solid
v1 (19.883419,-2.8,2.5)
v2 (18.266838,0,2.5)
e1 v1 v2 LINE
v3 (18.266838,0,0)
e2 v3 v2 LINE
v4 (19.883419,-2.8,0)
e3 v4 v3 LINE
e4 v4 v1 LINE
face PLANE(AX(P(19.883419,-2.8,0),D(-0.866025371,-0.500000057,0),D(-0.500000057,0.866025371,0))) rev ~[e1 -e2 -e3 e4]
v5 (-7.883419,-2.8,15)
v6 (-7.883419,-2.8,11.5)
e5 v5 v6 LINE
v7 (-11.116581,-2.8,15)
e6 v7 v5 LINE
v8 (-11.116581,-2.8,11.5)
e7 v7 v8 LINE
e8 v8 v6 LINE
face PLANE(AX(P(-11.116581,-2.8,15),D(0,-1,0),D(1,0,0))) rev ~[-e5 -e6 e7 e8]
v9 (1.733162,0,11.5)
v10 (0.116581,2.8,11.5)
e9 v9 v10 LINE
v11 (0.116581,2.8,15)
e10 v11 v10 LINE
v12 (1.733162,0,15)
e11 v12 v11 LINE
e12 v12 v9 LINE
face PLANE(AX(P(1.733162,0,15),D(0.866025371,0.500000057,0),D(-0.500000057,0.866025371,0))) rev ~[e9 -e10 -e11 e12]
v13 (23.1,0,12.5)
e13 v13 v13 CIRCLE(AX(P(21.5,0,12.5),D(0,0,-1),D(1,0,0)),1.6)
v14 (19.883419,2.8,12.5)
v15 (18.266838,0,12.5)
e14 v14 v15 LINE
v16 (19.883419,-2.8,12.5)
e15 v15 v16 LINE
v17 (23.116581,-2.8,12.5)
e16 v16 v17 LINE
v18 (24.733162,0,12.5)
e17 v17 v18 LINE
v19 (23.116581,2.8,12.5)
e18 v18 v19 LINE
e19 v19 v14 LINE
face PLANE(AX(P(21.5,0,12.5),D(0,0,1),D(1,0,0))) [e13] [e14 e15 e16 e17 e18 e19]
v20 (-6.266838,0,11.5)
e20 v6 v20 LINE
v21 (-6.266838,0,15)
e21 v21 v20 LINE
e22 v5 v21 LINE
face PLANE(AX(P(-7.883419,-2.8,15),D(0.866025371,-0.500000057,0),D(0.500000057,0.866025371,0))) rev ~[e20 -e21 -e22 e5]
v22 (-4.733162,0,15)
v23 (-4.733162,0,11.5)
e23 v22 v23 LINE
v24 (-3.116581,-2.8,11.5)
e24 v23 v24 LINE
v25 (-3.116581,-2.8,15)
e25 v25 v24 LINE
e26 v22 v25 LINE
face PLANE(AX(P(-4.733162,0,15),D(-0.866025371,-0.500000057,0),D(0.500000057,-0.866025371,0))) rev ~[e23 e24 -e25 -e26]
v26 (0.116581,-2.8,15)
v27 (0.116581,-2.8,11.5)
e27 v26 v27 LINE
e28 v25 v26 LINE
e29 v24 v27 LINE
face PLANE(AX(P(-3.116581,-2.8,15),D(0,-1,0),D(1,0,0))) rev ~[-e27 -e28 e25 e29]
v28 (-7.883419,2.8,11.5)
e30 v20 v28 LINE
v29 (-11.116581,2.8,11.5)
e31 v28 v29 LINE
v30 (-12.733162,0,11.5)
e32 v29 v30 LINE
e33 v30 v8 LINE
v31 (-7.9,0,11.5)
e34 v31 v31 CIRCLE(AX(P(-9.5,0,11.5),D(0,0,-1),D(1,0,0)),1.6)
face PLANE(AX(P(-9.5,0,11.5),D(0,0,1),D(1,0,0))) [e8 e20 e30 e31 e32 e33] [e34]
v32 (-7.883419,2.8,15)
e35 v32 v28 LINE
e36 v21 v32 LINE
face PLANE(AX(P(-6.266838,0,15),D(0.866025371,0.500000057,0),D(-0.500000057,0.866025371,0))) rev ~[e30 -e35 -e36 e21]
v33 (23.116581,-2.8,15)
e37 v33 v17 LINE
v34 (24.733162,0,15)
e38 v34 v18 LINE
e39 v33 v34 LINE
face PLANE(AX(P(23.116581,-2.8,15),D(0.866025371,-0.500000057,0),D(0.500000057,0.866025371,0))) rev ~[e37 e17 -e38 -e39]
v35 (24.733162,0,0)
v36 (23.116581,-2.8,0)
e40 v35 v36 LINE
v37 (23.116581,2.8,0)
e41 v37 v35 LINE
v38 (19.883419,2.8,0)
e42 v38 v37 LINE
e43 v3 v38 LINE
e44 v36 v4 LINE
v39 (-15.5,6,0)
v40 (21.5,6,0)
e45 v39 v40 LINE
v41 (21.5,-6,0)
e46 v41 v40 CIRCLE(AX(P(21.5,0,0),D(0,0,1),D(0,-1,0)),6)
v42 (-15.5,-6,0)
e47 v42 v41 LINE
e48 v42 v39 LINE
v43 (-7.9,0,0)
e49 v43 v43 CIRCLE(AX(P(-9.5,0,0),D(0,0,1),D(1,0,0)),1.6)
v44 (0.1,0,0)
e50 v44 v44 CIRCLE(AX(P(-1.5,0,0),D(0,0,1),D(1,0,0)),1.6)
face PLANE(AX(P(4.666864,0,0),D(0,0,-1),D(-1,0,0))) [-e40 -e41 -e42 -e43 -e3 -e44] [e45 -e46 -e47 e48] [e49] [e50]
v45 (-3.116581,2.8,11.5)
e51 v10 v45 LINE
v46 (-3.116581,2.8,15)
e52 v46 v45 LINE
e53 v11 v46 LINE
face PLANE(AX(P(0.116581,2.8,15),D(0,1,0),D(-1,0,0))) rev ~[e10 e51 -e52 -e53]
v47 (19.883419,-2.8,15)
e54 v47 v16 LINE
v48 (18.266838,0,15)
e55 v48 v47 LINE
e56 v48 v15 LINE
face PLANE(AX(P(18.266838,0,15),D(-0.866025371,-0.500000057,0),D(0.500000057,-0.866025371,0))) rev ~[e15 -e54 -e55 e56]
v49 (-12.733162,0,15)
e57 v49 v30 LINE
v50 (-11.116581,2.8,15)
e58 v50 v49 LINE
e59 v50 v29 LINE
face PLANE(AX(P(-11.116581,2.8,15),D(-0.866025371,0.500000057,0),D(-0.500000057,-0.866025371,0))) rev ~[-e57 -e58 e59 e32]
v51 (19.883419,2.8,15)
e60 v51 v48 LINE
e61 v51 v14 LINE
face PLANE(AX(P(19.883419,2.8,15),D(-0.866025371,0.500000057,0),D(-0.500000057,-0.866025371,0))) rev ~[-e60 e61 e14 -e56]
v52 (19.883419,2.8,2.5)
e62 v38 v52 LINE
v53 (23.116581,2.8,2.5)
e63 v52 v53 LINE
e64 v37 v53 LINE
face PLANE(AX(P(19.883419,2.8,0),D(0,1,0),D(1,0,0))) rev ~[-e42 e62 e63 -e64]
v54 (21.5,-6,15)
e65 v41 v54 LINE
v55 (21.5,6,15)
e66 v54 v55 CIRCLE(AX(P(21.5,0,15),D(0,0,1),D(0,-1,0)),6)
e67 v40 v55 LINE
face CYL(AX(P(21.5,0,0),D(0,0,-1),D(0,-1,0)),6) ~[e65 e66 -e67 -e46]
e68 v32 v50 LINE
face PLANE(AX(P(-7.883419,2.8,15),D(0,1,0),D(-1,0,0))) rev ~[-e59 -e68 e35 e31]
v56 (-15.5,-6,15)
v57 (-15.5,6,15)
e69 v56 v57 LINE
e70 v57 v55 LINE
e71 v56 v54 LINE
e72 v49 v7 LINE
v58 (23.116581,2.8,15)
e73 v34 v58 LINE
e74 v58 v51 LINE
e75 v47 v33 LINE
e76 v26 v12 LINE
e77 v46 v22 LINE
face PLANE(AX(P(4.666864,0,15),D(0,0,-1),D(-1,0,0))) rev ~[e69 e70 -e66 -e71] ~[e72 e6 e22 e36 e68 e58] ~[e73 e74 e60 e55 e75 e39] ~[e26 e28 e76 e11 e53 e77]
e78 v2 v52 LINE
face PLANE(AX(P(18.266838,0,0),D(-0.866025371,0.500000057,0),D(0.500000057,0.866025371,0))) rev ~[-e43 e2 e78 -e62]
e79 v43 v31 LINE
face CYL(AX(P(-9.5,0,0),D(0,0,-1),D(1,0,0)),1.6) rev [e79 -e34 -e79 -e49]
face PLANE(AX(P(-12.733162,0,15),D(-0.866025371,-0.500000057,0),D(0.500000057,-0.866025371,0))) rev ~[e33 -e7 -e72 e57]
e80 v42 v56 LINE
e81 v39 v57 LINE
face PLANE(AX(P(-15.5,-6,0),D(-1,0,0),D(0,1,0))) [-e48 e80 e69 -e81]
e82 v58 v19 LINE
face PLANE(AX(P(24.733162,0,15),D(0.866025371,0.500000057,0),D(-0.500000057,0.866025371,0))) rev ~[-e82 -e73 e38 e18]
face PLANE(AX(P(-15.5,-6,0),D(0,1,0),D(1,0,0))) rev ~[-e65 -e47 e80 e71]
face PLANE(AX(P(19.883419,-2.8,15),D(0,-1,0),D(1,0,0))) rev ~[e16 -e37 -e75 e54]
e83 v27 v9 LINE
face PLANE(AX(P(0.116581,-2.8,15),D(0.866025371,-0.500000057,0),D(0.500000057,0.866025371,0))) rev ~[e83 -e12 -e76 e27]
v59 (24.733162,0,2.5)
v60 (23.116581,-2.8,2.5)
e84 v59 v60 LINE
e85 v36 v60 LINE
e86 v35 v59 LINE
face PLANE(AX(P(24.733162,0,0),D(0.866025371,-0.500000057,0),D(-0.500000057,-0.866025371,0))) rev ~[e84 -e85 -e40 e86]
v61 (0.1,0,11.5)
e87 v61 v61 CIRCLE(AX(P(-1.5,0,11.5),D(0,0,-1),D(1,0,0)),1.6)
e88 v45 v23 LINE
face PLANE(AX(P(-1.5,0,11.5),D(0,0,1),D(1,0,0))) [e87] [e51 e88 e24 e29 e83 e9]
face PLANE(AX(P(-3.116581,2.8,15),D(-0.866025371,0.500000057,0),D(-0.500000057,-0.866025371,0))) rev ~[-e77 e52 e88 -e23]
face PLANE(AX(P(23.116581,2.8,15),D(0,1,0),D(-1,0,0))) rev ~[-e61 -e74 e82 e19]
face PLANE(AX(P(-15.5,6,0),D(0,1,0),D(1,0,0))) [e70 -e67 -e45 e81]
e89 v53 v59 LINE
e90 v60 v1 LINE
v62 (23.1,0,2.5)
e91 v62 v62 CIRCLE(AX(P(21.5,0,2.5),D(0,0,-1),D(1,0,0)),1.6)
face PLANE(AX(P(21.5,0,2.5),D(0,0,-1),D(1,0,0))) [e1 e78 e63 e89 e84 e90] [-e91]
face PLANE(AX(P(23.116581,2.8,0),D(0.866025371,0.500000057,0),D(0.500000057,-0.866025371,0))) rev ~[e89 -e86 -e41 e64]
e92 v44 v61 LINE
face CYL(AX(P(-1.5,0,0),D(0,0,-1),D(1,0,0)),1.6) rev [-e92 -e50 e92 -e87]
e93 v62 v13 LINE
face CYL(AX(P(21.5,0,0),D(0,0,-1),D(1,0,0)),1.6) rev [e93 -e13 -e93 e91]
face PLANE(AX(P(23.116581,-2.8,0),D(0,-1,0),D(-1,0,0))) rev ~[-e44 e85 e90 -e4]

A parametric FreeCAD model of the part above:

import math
import FreeCAD as App
import Part
import Sketcher

V = App.Vector
Q = App.Units.Quantity


def add_polygon(sketch, points):
    """Adds a closed chain of lines whose ends are joined by coincident constraints."""
    first, n = sketch.GeometryCount, len(points)
    for a, b in zip(points, points[1:] + points[:1]):
        sketch.addGeometry(Part.LineSegment(App.Vector(*a, 0), App.Vector(*b, 0)), False)
    for i in range(n):
        sketch.addConstraint(Sketcher.Constraint("Coincident", first + i, 2, first + (i + 1) % n, 1))

doc = App.newDocument("Part")
body = doc.addObject("PartDesign::Body", "Body")

sketch1 = body.newObject("Sketcher::SketchObject", "Sketch")
sketch1.AttachmentSupport = (doc.getObject("XY_Plane"), [""])
sketch1.MapMode = "FlatFace"
sketch1.addGeometry([
    Part.LineSegment(V(21.5, 6, 0), V(-15.5, 6, 0)),
    Part.LineSegment(V(-15.5, 6, 0), V(-15.5, -6, 0)),
    Part.LineSegment(V(-15.5, -6, 0), V(21.5, -6, 0)),
    Part.ArcOfCircle(Part.Circle(V(21.5, 0, 0), V(0, 0, 1), 6), math.radians(-90), math.radians(90)),
    Part.Circle(V(21.5, 0, 0), V(0, 0, 1), 1.6),
    Part.Circle(V(-1.5, 0, 0), V(0, 0, 1), 1.6),
    Part.Circle(V(-9.5, 0, 0), V(0, 0, 1), 1.6),
], False)
sketch1.addConstraint([
    Sketcher.Constraint("Coincident", 0, 2, 1, 1),
    Sketcher.Constraint("Coincident", 1, 2, 2, 1),
    Sketcher.Constraint("Tangent", 2, 2, 3, 1),
    Sketcher.Constraint("Tangent", 3, 2, 0, 1),
    Sketcher.Constraint("Horizontal", 0),
    Sketcher.Constraint("Vertical", 1),
    Sketcher.Constraint("Horizontal", 2),
    Sketcher.Constraint("Coincident", 4, 3, 3, 3),
    Sketcher.Constraint("Equal", 4, 5),
    Sketcher.Constraint("Equal", 5, 6),
    Sketcher.Constraint("PointOnObject", 3, 3, -1),
    Sketcher.Constraint("PointOnObject", 5, 3, -1),
    Sketcher.Constraint("PointOnObject", 6, 3, -1),
    Sketcher.Constraint("Radius", 3, Q("6 mm")),
    Sketcher.Constraint("Diameter", 4, Q("3.2 mm")),
    Sketcher.Constraint("DistanceX", 0, 2, 0, 1, Q("37 mm")),
    Sketcher.Constraint("DistanceX", 5, 3, 3, 3, Q("23 mm")),
    Sketcher.Constraint("DistanceX", 6, 3, 5, 3, Q("8 mm")),
    Sketcher.Constraint("DistanceX", -1, 1, 3, 3, Q("21.5 mm")),
])
pad1 = body.newObject("PartDesign::Pad", "Pad")
pad1.Profile = sketch1
pad1.Length = 15

sketch2 = body.newObject("Sketcher::SketchObject", "Sketch001")
sketch2.AttachmentSupport = (doc.getObject("XY_Plane"), [""])
sketch2.MapMode = "FlatFace"
sketch2.AttachmentOffset = App.Placement(V(0, 0, 15), App.Rotation())
add_polygon(sketch2, [(-7.9, 2.8), (-11.1, 2.8), (-12.7, 0), (-11.1, -2.8), (-7.9, -2.8), (-6.3, 0)])
add_polygon(sketch2, [(0.1, 2.8), (-3.1, 2.8), (-4.7, 0), (-3.1, -2.8), (0.1, -2.8), (1.7, 0)])
sketch2.addConstraint([
    Sketcher.Constraint("Horizontal", 0),
    Sketcher.Constraint("Horizontal", 3),
    Sketcher.Constraint("Horizontal", 6),
    Sketcher.Constraint("Horizontal", 9),
    Sketcher.Constraint("Symmetric", 0, 2, 2, 2, -1),
    Sketcher.Constraint("Symmetric", 6, 2, 8, 2, -1),
    Sketcher.Constraint("PointOnObject", 1, 2, -1),
    Sketcher.Constraint("PointOnObject", 4, 2, -1),
    Sketcher.Constraint("PointOnObject", 7, 2, -1),
    Sketcher.Constraint("PointOnObject", 10, 2, -1),
    Sketcher.Constraint("Parallel", 1, 4),
    Sketcher.Constraint("Parallel", 2, 5),
    Sketcher.Constraint("Parallel", 4, 7),
    Sketcher.Constraint("Parallel", 7, 10),
    Sketcher.Constraint("Parallel", 8, 11),
    Sketcher.Constraint("Horizontal", 5, 2, 6, 2),
    Sketcher.Constraint("Equal", 3, 6),
    Sketcher.Constraint("Angle", 1, Q("-120.000004 deg")),
    Sketcher.Constraint("DistanceX", 0, 2, 6, 2, Q("8 mm")),
    Sketcher.Constraint("DistanceY", -1, 1, 0, 2, Q("2.8 mm")),
    Sketcher.Constraint("DistanceX", 0, 2, 0, 1, Q("3.233162 mm")),
    Sketcher.Constraint("DistanceX", 0, 2, -1, 1, Q("11.116581 mm")),
])
pocket1 = body.newObject("PartDesign::Pocket", "Pocket")
pocket1.Profile = sketch2
pocket1.Length = 3.5

sketch3 = body.newObject("Sketcher::SketchObject", "Sketch002")
sketch3.AttachmentSupport = (doc.getObject("XY_Plane"), [""])
sketch3.MapMode = "FlatFace"
sketch3.AttachmentOffset = App.Placement(V(0, 0, 15), App.Rotation())
add_polygon(sketch3, [(23.1, 2.8), (19.9, 2.8), (18.3, 0), (19.9, -2.8), (23.1, -2.8), (24.7, 0)])
sketch3.addConstraint([
    Sketcher.Constraint("Horizontal", 0),
    Sketcher.Constraint("Horizontal", 3),
    Sketcher.Constraint("Symmetric", 0, 2, 2, 2, -1),
    Sketcher.Constraint("PointOnObject", 1, 2, -1),
    Sketcher.Constraint("PointOnObject", 4, 2, -1),
    Sketcher.Constraint("Parallel", 1, 4),
    Sketcher.Constraint("Parallel", 2, 5),
    Sketcher.Constraint("Angle", 1, Q("-120.000004 deg")),
    Sketcher.Constraint("DistanceY", -1, 1, 0, 2, Q("2.8 mm")),
    Sketcher.Constraint("DistanceX", 0, 2, 0, 1, Q("3.233162 mm")),
    Sketcher.Constraint("DistanceX", -1, 1, 0, 2, Q("19.883419 mm")),
])
pocket2 = body.newObject("PartDesign::Pocket", "Pocket001")
pocket2.Profile = sketch3
pocket2.Length = 2.5

sketch4 = body.newObject("Sketcher::SketchObject", "Sketch003")
sketch4.AttachmentSupport = (doc.getObject("XY_Plane"), [""])
sketch4.MapMode = "FlatFace"
add_polygon(sketch4, [(24.7, 0), (23.1, -2.8), (19.9, -2.8), (18.3, 0), (19.9, 2.8), (23.1, 2.8)])
sketch4.addConstraint([
    Sketcher.Constraint("Horizontal", 1),
    Sketcher.Constraint("Horizontal", 4),
    Sketcher.Constraint("Symmetric", 1, 2, 3, 2, -1),
    Sketcher.Constraint("PointOnObject", 2, 2, -1),
    Sketcher.Constraint("PointOnObject", 5, 2, -1),
    Sketcher.Constraint("Parallel", 0, 3),
    Sketcher.Constraint("Parallel", 2, 5),
    Sketcher.Constraint("Angle", 0, Q("-120.000004 deg")),
    Sketcher.Constraint("DistanceY", 0, 2, -1, 1, Q("2.8 mm")),
    Sketcher.Constraint("DistanceX", 1, 2, 1, 1, Q("3.233162 mm")),
    Sketcher.Constraint("DistanceX", -1, 1, 0, 2, Q("23.116581 mm")),
])
pocket3 = body.newObject("PartDesign::Pocket", "Pocket002")
pocket3.Profile = sketch4
pocket3.Length = 2.5
pocket3.Reversed = True

doc.recompute()
